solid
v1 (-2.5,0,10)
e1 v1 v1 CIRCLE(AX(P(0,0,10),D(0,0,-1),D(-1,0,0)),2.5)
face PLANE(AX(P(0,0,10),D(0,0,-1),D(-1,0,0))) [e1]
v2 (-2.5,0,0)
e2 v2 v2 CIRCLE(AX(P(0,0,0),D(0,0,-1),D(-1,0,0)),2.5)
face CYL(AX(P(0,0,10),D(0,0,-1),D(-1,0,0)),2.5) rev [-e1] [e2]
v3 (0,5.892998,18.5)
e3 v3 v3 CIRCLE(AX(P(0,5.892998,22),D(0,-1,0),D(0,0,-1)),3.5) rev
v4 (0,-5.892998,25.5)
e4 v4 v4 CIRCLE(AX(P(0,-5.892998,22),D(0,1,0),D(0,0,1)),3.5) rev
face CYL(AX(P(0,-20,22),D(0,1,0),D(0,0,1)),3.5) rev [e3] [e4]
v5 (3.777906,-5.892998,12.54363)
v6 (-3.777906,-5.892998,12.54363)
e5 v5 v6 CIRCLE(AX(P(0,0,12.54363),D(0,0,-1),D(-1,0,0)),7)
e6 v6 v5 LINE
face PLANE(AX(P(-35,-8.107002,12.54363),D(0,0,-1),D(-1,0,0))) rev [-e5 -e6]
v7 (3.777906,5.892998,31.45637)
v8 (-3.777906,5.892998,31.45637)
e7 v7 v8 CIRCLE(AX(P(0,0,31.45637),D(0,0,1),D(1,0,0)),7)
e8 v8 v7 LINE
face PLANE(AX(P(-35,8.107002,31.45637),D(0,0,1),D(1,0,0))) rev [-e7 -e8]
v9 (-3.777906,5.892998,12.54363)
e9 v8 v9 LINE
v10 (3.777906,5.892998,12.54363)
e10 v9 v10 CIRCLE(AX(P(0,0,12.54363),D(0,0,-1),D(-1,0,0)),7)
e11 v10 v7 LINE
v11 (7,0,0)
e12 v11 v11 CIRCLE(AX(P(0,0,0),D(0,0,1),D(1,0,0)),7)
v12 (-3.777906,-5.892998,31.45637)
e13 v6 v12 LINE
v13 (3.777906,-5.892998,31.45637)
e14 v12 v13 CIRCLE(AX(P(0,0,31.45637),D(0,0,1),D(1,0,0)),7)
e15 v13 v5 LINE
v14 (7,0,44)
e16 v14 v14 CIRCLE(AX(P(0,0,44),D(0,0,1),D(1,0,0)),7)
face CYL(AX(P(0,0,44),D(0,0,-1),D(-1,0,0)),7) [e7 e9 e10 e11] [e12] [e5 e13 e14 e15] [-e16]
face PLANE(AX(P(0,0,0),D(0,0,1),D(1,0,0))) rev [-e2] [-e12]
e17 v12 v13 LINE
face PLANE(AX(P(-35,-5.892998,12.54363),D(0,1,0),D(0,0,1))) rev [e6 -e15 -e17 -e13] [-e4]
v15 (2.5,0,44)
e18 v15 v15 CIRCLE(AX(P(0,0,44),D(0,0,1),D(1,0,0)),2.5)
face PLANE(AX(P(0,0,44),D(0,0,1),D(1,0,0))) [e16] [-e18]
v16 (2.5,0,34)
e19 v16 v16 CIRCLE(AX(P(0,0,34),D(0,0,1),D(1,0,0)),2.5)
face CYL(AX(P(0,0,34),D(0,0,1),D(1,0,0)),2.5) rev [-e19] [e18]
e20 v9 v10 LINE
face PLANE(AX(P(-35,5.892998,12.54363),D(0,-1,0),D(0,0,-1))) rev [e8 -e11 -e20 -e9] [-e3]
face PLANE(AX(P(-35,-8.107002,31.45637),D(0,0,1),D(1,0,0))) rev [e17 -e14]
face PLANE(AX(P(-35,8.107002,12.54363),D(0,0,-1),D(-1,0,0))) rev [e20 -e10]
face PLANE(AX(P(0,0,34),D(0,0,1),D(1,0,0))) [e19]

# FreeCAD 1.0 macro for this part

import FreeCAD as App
import Part
import Sketcher
Q = App.Units.Quantity

doc = App.newDocument("Part")
params = doc.addObject("Spreadsheet::Sheet", "Params")
for row, (alias, value) in enumerate([
    ("sketch1_diameter", "14 mm"),
    ("pad1_length", "44 mm"),
    ("sketch2_diameter", "5 mm"),
    ("pocket1_length", "10 mm"),
    ("sketch3_diameter", "5 mm"),
    ("pocket2_length", "10 mm"),
    ("sketch4_diameter", "7 mm"),
    ("pocket3_length", "40 mm"),
    ("pocket4_length", "70 mm"),
], start=1):
    params.set(f"A{row}", alias)
    params.set(f"B{row}", "=" + value)
    params.setAlias(f"B{row}", alias)

body = doc.addObject("PartDesign::Body", "Body")

# Sketch on XY plane
sketch1 = body.newObject("Sketcher::SketchObject", "Sketch")
sketch1.AttachmentSupport = (doc.getObject("XY_Plane"), [""])
sketch1.MapMode = "FlatFace"
sketch1.addGeometry(Part.Circle(App.Vector(0, 0, 0), App.Vector(0, 0, 1), 7), False)
sketch1.addConstraint([
    Sketcher.Constraint("Coincident", 0, 3, -1, 1),
    Sketcher.Constraint("Diameter", 0, Q("14 mm")),
])
sketch1.setExpression("Constraints[1]", "Params.sketch1_diameter")
pad1 = body.newObject("PartDesign::Pad", "Pad")
pad1.Profile = sketch1
pad1.setExpression("Length", "Params.pad1_length")

# Sketch on XY plane
sketch2 = body.newObject("Sketcher::SketchObject", "Sketch001")
sketch2.AttachmentSupport = (doc.getObject("XY_Plane"), [""])
sketch2.MapMode = "FlatFace"
sketch2.AttachmentOffset = App.Placement(App.Vector(0, 0, 44), App.Rotation())
sketch2.addGeometry(Part.Circle(App.Vector(0, 0, 0), App.Vector(0, 0, 1), 2.5), False)
sketch2.addConstraint([
    Sketcher.Constraint("Coincident", 0, 3, -1, 1),
    Sketcher.Constraint("Diameter", 0, Q("5 mm")),
])
sketch2.setExpression("Constraints[1]", "Params.sketch2_diameter")
pocket1 = body.newObject("PartDesign::Pocket", "Pocket")
pocket1.Profile = sketch2
pocket1.setExpression("Length", "Params.pocket1_length")

# Sketch on XY plane
sketch3 = body.newObject("Sketcher::SketchObject", "Sketch002")
sketch3.AttachmentSupport = (doc.getObject("XY_Plane"), [""])
sketch3.MapMode = "FlatFace"
sketch3.AttachmentOffset = App.Placement(App.Vector(0, 0, 10), App.Rotation())
sketch3.addGeometry(Part.Circle(App.Vector(0, 0, 0), App.Vector(0, 0, 1), 2.5), False)
sketch3.addConstraint([
    Sketcher.Constraint("Coincident", 0, 3, -1, 1),
    Sketcher.Constraint("Diameter", 0, Q("5 mm")),
])
sketch3.setExpression("Constraints[1]", "Params.sketch3_diameter")
pocket2 = body.newObject("PartDesign::Pocket", "Pocket001")
pocket2.Profile = sketch3
pocket2.setExpression("Length", "Params.pocket2_length")

# Sketch on XZ plane
sketch4 = body.newObject("Sketcher::SketchObject", "Sketch003")
sketch4.AttachmentSupport = (doc.getObject("XZ_Plane"), [""])
sketch4.MapMode = "FlatFace"
sketch4.addGeometry(Part.Circle(App.Vector(0, 22, 0), App.Vector(0, 0, 1), 3.5), False)
sketch4.addConstraint([
    Sketcher.Constraint("PointOnObject", 0, 3, -2),
    Sketcher.Constraint("Diameter", 0, Q("7 mm")),
    Sketcher.Constraint("DistanceY", -1, 1, 0, 3, Q("22 mm")),
])
sketch4.setExpression("Constraints[1]", "Params.sketch4_diameter")
pocket3 = body.newObject("PartDesign::Pocket", "Pocket002")
pocket3.Profile = sketch4
pocket3.setExpression("Length", "Params.pocket3_length")
pocket3.Midplane = True

# Sketch on YZ plane
sketch5 = body.newObject("Sketcher::SketchObject", "Sketch004")
sketch5.AttachmentSupport = (doc.getObject("YZ_Plane"), [""])
sketch5.MapMode = "FlatFace"
sketch5.addGeometry([
    Part.LineSegment(App.Vector(8.107002, 31.45637, 0), App.Vector(5.892998, 31.45637, 0)),  # 0
    Part.LineSegment(App.Vector(5.892998, 31.45637, 0), App.Vector(5.892998, 12.54363, 0)),  # 1
    Part.LineSegment(App.Vector(5.892998, 12.54363, 0), App.Vector(8.107002, 12.54363, 0)),  # 2
    Part.LineSegment(App.Vector(8.107002, 12.54363, 0), App.Vector(8.107002, 31.45637, 0)),  # 3
    Part.LineSegment(App.Vector(-5.892998, 31.45637, 0), App.Vector(-8.107002, 31.45637, 0)),  # 4
    Part.LineSegment(App.Vector(-8.107002, 31.45637, 0), App.Vector(-8.107002, 12.54363, 0)),  # 5
    Part.LineSegment(App.Vector(-8.107002, 12.54363, 0), App.Vector(-5.892998, 12.54363, 0)),  # 6
    Part.LineSegment(App.Vector(-5.892998, 12.54363, 0), App.Vector(-5.892998, 31.45637, 0)),  # 7
], False)
sketch5.addConstraint([
    Sketcher.Constraint("Coincident", 0, 2, 1, 1),
    Sketcher.Constraint("Coincident", 1, 2, 2, 1),
    Sketcher.Constraint("Coincident", 2, 2, 3, 1),
    Sketcher.Constraint("Coincident", 3, 2, 0, 1),
    Sketcher.Constraint("Coincident", 4, 2, 5, 1),
    Sketcher.Constraint("Coincident", 5, 2, 6, 1),
    Sketcher.Constraint("Coincident", 6, 2, 7, 1),
    Sketcher.Constraint("Coincident", 7, 2, 4, 1),
    Sketcher.Constraint("Horizontal", 0),
    Sketcher.Constraint("Vertical", 1),
    Sketcher.Constraint("Horizontal", 2),
    Sketcher.Constraint("Vertical", 3),
    Sketcher.Constraint("Horizontal", 4),
    Sketcher.Constraint("Vertical", 5),
    Sketcher.Constraint("Horizontal", 6),
    Sketcher.Constraint("Vertical", 7),
    Sketcher.Constraint("Symmetric", 3, 2, 4, 2, -2),
    Sketcher.Constraint("Symmetric", 1, 2, 6, 2, -2),
    Sketcher.Constraint("DistanceX", 4, 2, 0, 2, Q("14 mm")),
    Sketcher.Constraint("DistanceX", -1, 1, 0, 2, Q("5.892998 mm")),
    Sketcher.Constraint("DistanceY", 1, 2, 1, 1, Q("18.912741 mm")),
    Sketcher.Constraint("DistanceY", -1, 1, 0, 2, Q("31.45637 mm")),
])
pocket4 = body.newObject("PartDesign::Pocket", "Pocket003")
pocket4.Profile = sketch5
pocket4.setExpression("Length", "Params.pocket4_length")
pocket4.Midplane = True

doc.recompute()
